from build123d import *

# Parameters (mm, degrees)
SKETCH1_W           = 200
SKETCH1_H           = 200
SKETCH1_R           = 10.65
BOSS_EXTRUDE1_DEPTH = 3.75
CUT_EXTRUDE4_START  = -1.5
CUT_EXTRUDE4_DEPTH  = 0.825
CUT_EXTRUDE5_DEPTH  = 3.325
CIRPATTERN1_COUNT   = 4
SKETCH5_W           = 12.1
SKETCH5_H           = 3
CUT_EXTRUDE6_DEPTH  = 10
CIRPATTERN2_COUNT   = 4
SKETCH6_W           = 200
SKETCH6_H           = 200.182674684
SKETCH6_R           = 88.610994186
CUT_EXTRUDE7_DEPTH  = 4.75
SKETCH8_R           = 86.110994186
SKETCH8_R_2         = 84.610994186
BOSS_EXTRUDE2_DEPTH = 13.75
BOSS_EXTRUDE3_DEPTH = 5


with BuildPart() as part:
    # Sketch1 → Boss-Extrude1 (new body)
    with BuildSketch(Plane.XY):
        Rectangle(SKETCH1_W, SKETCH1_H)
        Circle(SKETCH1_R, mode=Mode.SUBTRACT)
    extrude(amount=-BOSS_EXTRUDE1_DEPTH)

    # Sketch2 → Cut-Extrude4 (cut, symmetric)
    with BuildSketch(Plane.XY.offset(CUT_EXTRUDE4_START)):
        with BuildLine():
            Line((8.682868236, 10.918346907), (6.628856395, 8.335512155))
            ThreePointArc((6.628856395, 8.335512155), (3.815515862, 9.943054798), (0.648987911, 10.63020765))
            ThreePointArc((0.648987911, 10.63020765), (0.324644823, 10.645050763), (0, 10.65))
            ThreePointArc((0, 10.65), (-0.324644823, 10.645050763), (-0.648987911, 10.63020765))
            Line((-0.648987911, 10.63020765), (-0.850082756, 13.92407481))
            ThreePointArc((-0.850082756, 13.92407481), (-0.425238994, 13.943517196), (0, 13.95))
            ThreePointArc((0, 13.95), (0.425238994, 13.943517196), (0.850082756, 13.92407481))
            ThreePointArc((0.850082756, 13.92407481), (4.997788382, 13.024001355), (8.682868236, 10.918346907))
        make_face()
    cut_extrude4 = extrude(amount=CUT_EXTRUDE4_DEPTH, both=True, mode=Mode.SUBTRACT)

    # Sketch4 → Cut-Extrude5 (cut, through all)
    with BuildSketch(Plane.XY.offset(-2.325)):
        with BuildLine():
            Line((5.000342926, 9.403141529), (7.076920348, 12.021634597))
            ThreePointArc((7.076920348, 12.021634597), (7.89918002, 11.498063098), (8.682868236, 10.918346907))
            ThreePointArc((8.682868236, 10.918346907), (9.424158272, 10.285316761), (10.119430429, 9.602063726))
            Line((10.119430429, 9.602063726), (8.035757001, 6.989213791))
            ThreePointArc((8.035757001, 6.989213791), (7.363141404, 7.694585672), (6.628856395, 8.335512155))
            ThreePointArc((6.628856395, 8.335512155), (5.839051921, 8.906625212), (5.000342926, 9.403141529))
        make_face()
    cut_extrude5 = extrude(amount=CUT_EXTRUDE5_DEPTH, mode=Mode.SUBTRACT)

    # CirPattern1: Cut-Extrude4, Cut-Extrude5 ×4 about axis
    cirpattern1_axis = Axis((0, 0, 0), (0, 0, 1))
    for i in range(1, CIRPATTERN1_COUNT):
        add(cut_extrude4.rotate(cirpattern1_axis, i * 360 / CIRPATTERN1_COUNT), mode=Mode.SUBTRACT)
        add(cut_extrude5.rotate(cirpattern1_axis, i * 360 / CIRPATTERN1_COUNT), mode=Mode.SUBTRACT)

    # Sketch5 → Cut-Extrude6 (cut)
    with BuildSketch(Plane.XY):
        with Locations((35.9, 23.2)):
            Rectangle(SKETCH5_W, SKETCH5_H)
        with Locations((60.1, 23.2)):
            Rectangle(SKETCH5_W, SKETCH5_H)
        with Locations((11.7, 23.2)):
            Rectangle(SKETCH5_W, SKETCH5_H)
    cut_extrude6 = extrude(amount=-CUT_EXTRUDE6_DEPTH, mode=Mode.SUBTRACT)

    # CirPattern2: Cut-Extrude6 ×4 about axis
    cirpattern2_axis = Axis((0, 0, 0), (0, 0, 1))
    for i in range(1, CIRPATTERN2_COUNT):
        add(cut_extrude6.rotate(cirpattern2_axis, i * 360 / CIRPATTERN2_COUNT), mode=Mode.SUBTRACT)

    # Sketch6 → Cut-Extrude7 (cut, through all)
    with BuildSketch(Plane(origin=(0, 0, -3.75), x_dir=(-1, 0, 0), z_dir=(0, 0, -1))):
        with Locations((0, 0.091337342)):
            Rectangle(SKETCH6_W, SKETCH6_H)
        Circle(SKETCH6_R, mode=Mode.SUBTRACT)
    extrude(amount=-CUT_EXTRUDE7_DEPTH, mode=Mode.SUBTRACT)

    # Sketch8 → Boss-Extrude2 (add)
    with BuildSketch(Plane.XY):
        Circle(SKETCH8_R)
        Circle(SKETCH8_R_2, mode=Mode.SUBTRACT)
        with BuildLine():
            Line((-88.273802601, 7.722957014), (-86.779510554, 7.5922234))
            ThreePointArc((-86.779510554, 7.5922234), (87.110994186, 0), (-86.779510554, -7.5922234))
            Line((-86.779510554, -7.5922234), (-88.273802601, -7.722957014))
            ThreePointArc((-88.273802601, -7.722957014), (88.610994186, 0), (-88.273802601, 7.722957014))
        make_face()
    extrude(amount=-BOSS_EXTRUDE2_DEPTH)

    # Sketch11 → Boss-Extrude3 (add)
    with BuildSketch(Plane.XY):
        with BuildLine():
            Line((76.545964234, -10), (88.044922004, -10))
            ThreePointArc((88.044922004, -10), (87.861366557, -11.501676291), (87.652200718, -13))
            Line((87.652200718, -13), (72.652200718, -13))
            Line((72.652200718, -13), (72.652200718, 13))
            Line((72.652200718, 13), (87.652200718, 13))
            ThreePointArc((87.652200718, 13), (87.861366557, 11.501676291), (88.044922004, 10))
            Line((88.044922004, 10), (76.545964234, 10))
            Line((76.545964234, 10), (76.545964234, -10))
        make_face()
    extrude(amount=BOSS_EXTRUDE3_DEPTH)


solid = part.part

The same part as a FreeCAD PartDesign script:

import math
import FreeCAD as App
import Part
import Sketcher
Q = App.Units.Quantity

doc = App.newDocument("Part")
body = doc.addObject("PartDesign::Body", "Body")

# Sketch on XY plane
sketch1 = body.newObject("Sketcher::SketchObject", "Sketch")
sketch1.AttachmentSupport = (doc.getObject("XY_Plane"), [""])
sketch1.MapMode = "FlatFace"
sketch1.addGeometry(Part.LineSegment(App.Vector(-100, 100, 0), App.Vector(-100, -100, 0)), False)
sketch1.addGeometry(Part.LineSegment(App.Vector(-100, -100, 0), App.Vector(100, -100, 0)), False)
sketch1.addGeometry(Part.LineSegment(App.Vector(100, -100, 0), App.Vector(100, 100, 0)), False)
sketch1.addGeometry(Part.LineSegment(App.Vector(100, 100, 0), App.Vector(-100, 100, 0)), False)
sketch1.addGeometry(Part.Circle(App.Vector(0, 0, 0), App.Vector(0, 0, 1), 11), False)
sketch1.addConstraint(Sketcher.Constraint("Coincident", 0, 2, 1, 1))
sketch1.addConstraint(Sketcher.Constraint("Coincident", 1, 2, 2, 1))
sketch1.addConstraint(Sketcher.Constraint("Coincident", 2, 2, 3, 1))
sketch1.addConstraint(Sketcher.Constraint("Coincident", 3, 2, 0, 1))
sketch1.addConstraint(Sketcher.Constraint("Vertical", 0))
sketch1.addConstraint(Sketcher.Constraint("Horizontal", 1))
sketch1.addConstraint(Sketcher.Constraint("Vertical", 2))
sketch1.addConstraint(Sketcher.Constraint("Horizontal", 3))
sketch1.addConstraint(Sketcher.Constraint("Coincident", 4, 3, -1, 1))
sketch1.addConstraint(Sketcher.Constraint("Symmetric", 0, 2, 2, 2, -1, 1))
sketch1.addConstraint(Sketcher.Constraint("Equal", 3, 0))
sketch1.addConstraint(Sketcher.Constraint("Diameter", 4, Q("21.3 mm")))
sketch1.addConstraint(Sketcher.Constraint("DistanceX", 1, 1, 1, 2, Q("200 mm")))
pad1 = body.newObject("PartDesign::Pad", "Pad")
pad1.Profile = sketch1
pad1.Length = 3.75
pad1.Reversed = True

# Sketch on XY plane
sketch2 = body.newObject("Sketcher::SketchObject", "Sketch001")
sketch2.AttachmentSupport = (doc.getObject("XY_Plane"), [""])
sketch2.MapMode = "FlatFace"
sketch2.AttachmentOffset = App.Placement(App.Vector(0, 0, -1.5), App.Rotation())
sketch2.addGeometry(Part.LineSegment(App.Vector(6.6, 8.3, 0), App.Vector(8.7, 10.9, 0)), False)
sketch2.addGeometry(Part.ArcOfCircle(Part.Circle(App.Vector(0, 0, 0), App.Vector(0, 0, 1), 13.9), math.radians(52), math.radians(87)), False)
sketch2.addGeometry(Part.ArcOfCircle(Part.Circle(App.Vector(0, 0, 0), App.Vector(0, 0, 1), 14), math.radians(86.51), math.radians(90)), False)
sketch2.addGeometry(Part.ArcOfCircle(Part.Circle(App.Vector(0, 0, 0), App.Vector(0, 0, 1), 14), math.radians(90), math.radians(93.49)), False)
sketch2.addGeometry(Part.LineSegment(App.Vector(-0.9, 13.9, 0), App.Vector(-0.6, 10.6, 0)), False)
sketch2.addGeometry(Part.ArcOfCircle(Part.Circle(App.Vector(0, 0, 0), App.Vector(0, 0, 1), 10.6), math.radians(90), math.radians(93.49)), False)
sketch2.addGeometry(Part.ArcOfCircle(Part.Circle(App.Vector(0, 0, 0), App.Vector(0, 0, 1), 10.6), math.radians(86.51), math.radians(90)), False)
sketch2.addGeometry(Part.ArcOfCircle(Part.Circle(App.Vector(0, 0, 0), App.Vector(0, 0, 1), 10.6), math.radians(52), math.radians(87)), False)
sketch2.addConstraint(Sketcher.Constraint("Coincident", 0, 2, 1, 1))
sketch2.addConstraint(Sketcher.Constraint("Tangent", 1, 2, 2, 1))
sketch2.addConstraint(Sketcher.Constraint("Tangent", 2, 2, 3, 1))
sketch2.addConstraint(Sketcher.Constraint("Coincident", 3, 2, 4, 1))
sketch2.addConstraint(Sketcher.Constraint("Coincident", 4, 2, 5, 2))
sketch2.addConstraint(Sketcher.Constraint("Tangent", 5, 1, 6, 2))
sketch2.addConstraint(Sketcher.Constraint("Tangent", 6, 1, 7, 2))
sketch2.addConstraint(Sketcher.Constraint("Coincident", 7, 1, 0, 1))
sketch2.addConstraint(Sketcher.Constraint("Coincident", 1, 3, -1, 1))
sketch2.addConstraint(Sketcher.Constraint("Coincident", 3, 3, -1, 1))
sketch2.addConstraint(Sketcher.Constraint("Coincident", 5, 3, -1, 1))
sketch2.addConstraint(Sketcher.Constraint("Coincident", 7, 3, -1, 1))
sketch2.addConstraint(Sketcher.Constraint("PointOnObject", 2, 2, -2))
sketch2.addConstraint(Sketcher.Constraint("PointOnObject", 5, 1, -2))
sketch2.addConstraint(Sketcher.Constraint("Horizontal", 1, 2, 3, 2))
sketch2.addConstraint(Sketcher.Constraint("Horizontal", 4, 2, 6, 1))
sketch2.addConstraint(Sketcher.Constraint("Radius", 1, Q("13.95 mm")))
sketch2.addConstraint(Sketcher.Constraint("Radius", 5, Q("10.649999 mm")))
sketch2.addConstraint(Sketcher.Constraint("DistanceX", -1, 1, 0, 2, Q("8.682868 mm")))
sketch2.addConstraint(Sketcher.Constraint("DistanceX", 3, 2, 0, 2, Q("9.532951 mm")))
sketch2.addConstraint(Sketcher.Constraint("DistanceX", 4, 2, 1, 2, Q("1.499071 mm")))
sketch2.addConstraint(Sketcher.Constraint("DistanceX", 7, 1, 0, 2, Q("2.054012 mm")))
pocket1 = body.newObject("PartDesign::Pocket", "Pocket")
pocket1.Profile = sketch2
pocket1.Length = 1.65
pocket1.Midplane = True

# Sketch on XY plane
sketch3 = body.newObject("Sketcher::SketchObject", "Sketch002")
sketch3.AttachmentSupport = (doc.getObject("XY_Plane"), [""])
sketch3.MapMode = "FlatFace"
sketch3.AttachmentOffset = App.Placement(App.Vector(0, 0, -2.325), App.Rotation())
sketch3.addGeometry(Part.LineSegment(App.Vector(7.1, 12, 0), App.Vector(5, 9.4, 0)), False)
sketch3.addGeometry(Part.ArcOfCircle(Part.Circle(App.Vector(0, 0, 0), App.Vector(0, 0, 1), 10.6), math.radians(51.51), math.radians(62)), False)
sketch3.addGeometry(Part.ArcOfCircle(Part.Circle(App.Vector(0, 0, 0), App.Vector(0, 0, 1), 10.6), math.radians(41.02), math.radians(51.51)), False)
sketch3.addGeometry(Part.LineSegment(App.Vector(8, 7, 0), App.Vector(10.1, 9.6, 0)), False)
sketch3.addGeometry(Part.ArcOfCircle(Part.Circle(App.Vector(0, 0, 0), App.Vector(0, 0, 1), 13.9), math.radians(43.5), math.radians(51.51)), False)
sketch3.addGeometry(Part.ArcOfCircle(Part.Circle(App.Vector(0, 0, 0), App.Vector(0, 0, 1), 13.9), math.radians(51.51), math.radians(59.52)), False)
sketch3.addConstraint(Sketcher.Constraint("Coincident", 0, 2, 1, 2))
sketch3.addConstraint(Sketcher.Constraint("Tangent", 1, 1, 2, 2))
sketch3.addConstraint(Sketcher.Constraint("Coincident", 2, 1, 3, 1))
sketch3.addConstraint(Sketcher.Constraint("Coincident", 3, 2, 4, 1))
sketch3.addConstraint(Sketcher.Constraint("Tangent", 4, 2, 5, 1))
sketch3.addConstraint(Sketcher.Constraint("Coincident", 5, 2, 0, 1))
sketch3.addConstraint(Sketcher.Constraint("Coincident", 1, 3, -1, 1))
sketch3.addConstraint(Sketcher.Constraint("Coincident", 4, 3, -1, 1))
sketch3.addConstraint(Sketcher.Constraint("Equal", 1, 2))
sketch3.addConstraint(Sketcher.Constraint("Equal", 4, 5))
sketch3.addConstraint(Sketcher.Constraint("Equal", 0, 3))
sketch3.addConstraint(Sketcher.Constraint("Radius", 1, Q("10.65 mm")))
sketch3.addConstraint(Sketcher.Constraint("Radius", 4, Q("13.95 mm")))
sketch3.addConstraint(Sketcher.Constraint("DistanceX", 1, 1, 2, 1, Q("1.406901 mm")))
sketch3.addConstraint(Sketcher.Constraint("DistanceY", 2, 1, 1, 1, Q("1.346298 mm")))
sketch3.addConstraint(Sketcher.Constraint("DistanceY", -1, 1, 0, 2, Q("9.403142 mm")))
sketch3.addConstraint(Sketcher.Constraint("DistanceX", -1, 1, 3, 2, Q("10.11943 mm")))
sketch3.addConstraint(Sketcher.Constraint("DistanceX", -1, 1, 4, 2, Q("8.682868 mm")))
pocket2 = body.newObject("PartDesign::Pocket", "Pocket001")
pocket2.Profile = sketch3
pocket2.Type = "ThroughAll"
pocket2.Reversed = True
doc.recompute()

polarpattern = body.newObject("PartDesign::PolarPattern", "PolarPattern")
polarpattern.Originals = [pocket1, pocket2]
polarpattern.Axis = (doc.getObject("Z_Axis"), [""])
polarpattern.Angle = 360
polarpattern.Occurrences = 4
body.Tip = polarpattern

# Sketch on XY plane
sketch4 = body.newObject("Sketcher::SketchObject", "Sketch003")
sketch4.AttachmentSupport = (doc.getObject("XY_Plane"), [""])
sketch4.MapMode = "FlatFace"
sketch4.addGeometry(Part.LineSegment(App.Vector(29.9, 24.7, 0), App.Vector(29.9, 21.7, 0)), False)
sketch4.addGeometry(Part.LineSegment(App.Vector(29.9, 21.7, 0), App.Vector(42, 21.7, 0)), False)
sketch4.addGeometry(Part.LineSegment(App.Vector(42, 21.7, 0), App.Vector(42, 24.7, 0)), False)
sketch4.addGeometry(Part.LineSegment(App.Vector(42, 24.7, 0), App.Vector(29.9, 24.7, 0)), False)
sketch4.addGeometry(Part.LineSegment(App.Vector(54, 24.7, 0), App.Vector(54, 21.7, 0)), False)
sketch4.addGeometry(Part.LineSegment(App.Vector(54, 21.7, 0), App.Vector(66.2, 21.7, 0)), False)
sketch4.addGeometry(Part.LineSegment(App.Vector(66.2, 21.7, 0), App.Vector(66.2, 24.7, 0)), False)
sketch4.addGeometry(Part.LineSegment(App.Vector(66.2, 24.7, 0), App.Vector(54, 24.7, 0)), False)
sketch4.addGeometry(Part.LineSegment(App.Vector(5.7, 24.7, 0), App.Vector(5.7, 21.7, 0)), False)
sketch4.addGeometry(Part.LineSegment(App.Vector(5.7, 21.7, 0), App.Vector(17.8, 21.7, 0)), False)
sketch4.addGeometry(Part.LineSegment(App.Vector(17.8, 21.7, 0), App.Vector(17.8, 24.7, 0)), False)
sketch4.addGeometry(Part.LineSegment(App.Vector(17.8, 24.7, 0), App.Vector(5.7, 24.7, 0)), False)
sketch4.addConstraint(Sketcher.Constraint("Coincident", 0, 2, 1, 1))
sketch4.addConstraint(Sketcher.Constraint("Coincident", 1, 2, 2, 1))
sketch4.addConstraint(Sketcher.Constraint("Coincident", 2, 2, 3, 1))
sketch4.addConstraint(Sketcher.Constraint("Coincident", 3, 2, 0, 1))
sketch4.addConstraint(Sketcher.Constraint("Coincident", 4, 2, 5, 1))
sketch4.addConstraint(Sketcher.Constraint("Coincident", 5, 2, 6, 1))
sketch4.addConstraint(Sketcher.Constraint("Coincident", 6, 2, 7, 1))
sketch4.addConstraint(Sketcher.Constraint("Coincident", 7, 2, 4, 1))
sketch4.addConstraint(Sketcher.Constraint("Coincident", 8, 2, 9, 1))
sketch4.addConstraint(Sketcher.Constraint("Coincident", 9, 2, 10, 1))
sketch4.addConstraint(Sketcher.Constraint("Coincident", 10, 2, 11, 1))
sketch4.addConstraint(Sketcher.Constraint("Coincident", 11, 2, 8, 1))
sketch4.addConstraint(Sketcher.Constraint("Vertical", 0))
sketch4.addConstraint(Sketcher.Constraint("Horizontal", 1))
sketch4.addConstraint(Sketcher.Constraint("Vertical", 2))
sketch4.addConstraint(Sketcher.Constraint("Horizontal", 3))
sketch4.addConstraint(Sketcher.Constraint("Vertical", 4))
sketch4.addConstraint(Sketcher.Constraint("Horizontal", 5))
sketch4.addConstraint(Sketcher.Constraint("Vertical", 6))
sketch4.addConstraint(Sketcher.Constraint("Horizontal", 7))
sketch4.addConstraint(Sketcher.Constraint("Vertical", 8))
sketch4.addConstraint(Sketcher.Constraint("Horizontal", 9))
sketch4.addConstraint(Sketcher.Constraint("Vertical", 10))
sketch4.addConstraint(Sketcher.Constraint("Horizontal", 11))
sketch4.addConstraint(Sketcher.Constraint("Horizontal", 1, 2, 4, 2))
sketch4.addConstraint(Sketcher.Constraint("Horizontal", 3, 2, 6, 2))
sketch4.addConstraint(Sketcher.Constraint("Horizontal", 5, 2, 8, 2))
sketch4.addConstraint(Sketcher.Constraint("Horizontal", 7, 2, 10, 2))
sketch4.addConstraint(Sketcher.Constraint("Equal", 3, 5))
sketch4.addConstraint(Sketcher.Constraint("Equal", 7, 9))
sketch4.addConstraint(Sketcher.Constraint("DistanceY", 0, 2, 0, 1, Q("3 mm")))
sketch4.addConstraint(Sketcher.Constraint("DistanceX", 1, 1, 1, 2, Q("12.1 mm")))
sketch4.addConstraint(Sketcher.Constraint("DistanceY", -1, 1, 0, 2, Q("21.7 mm")))
sketch4.addConstraint(Sketcher.Constraint("DistanceX", 1, 2, 4, 2, Q("12.1 mm")))
sketch4.addConstraint(Sketcher.Constraint("DistanceX", 8, 2, 0, 2, Q("24.2 mm")))
sketch4.addConstraint(Sketcher.Constraint("DistanceX", -1, 1, 0, 2, Q("29.85 mm")))
pocket3 = body.newObject("PartDesign::Pocket", "Pocket002")
pocket3.Profile = sketch4
pocket3.Length = 10
doc.recompute()

polarpattern2 = body.newObject("PartDesign::PolarPattern", "PolarPattern001")
polarpattern2.Originals = [pocket3]
polarpattern2.Axis = (doc.getObject("Z_Axis"), [""])
polarpattern2.Angle = 360
polarpattern2.Occurrences = 4
body.Tip = polarpattern2

# Sketch on XY plane
sketch5 = body.newObject("Sketcher::SketchObject", "Sketch004")
sketch5.AttachmentSupport = (doc.getObject("XY_Plane"), [""])
sketch5.MapMode = "FlatFace"
sketch5.AttachmentOffset = App.Placement(App.Vector(0, 0, -3.75), App.Rotation())
sketch5.addGeometry(Part.LineSegment(App.Vector(100, 100, 0), App.Vector(100, -100, 0)), False)
sketch5.addGeometry(Part.LineSegment(App.Vector(100, -100, 0), App.Vector(-100, -100, 0)), False)
sketch5.addGeometry(Part.LineSegment(App.Vector(-100, -100, 0), App.Vector(-100, 100, 0)), False)
sketch5.addGeometry(Part.LineSegment(App.Vector(-100, 100, 0), App.Vector(100, 100, 0)), False)
sketch5.addGeometry(Part.Circle(App.Vector(0, 0, 0), App.Vector(0, 0, 1), 89), False)
sketch5.addConstraint(Sketcher.Constraint("Coincident", 0, 2, 1, 1))
sketch5.addConstraint(Sketcher.Constraint("Coincident", 1, 2, 2, 1))
sketch5.addConstraint(Sketcher.Constraint("Coincident", 2, 2, 3, 1))
sketch5.addConstraint(Sketcher.Constraint("Coincident", 3, 2, 0, 1))
sketch5.addConstraint(Sketcher.Constraint("Vertical", 0))
sketch5.addConstraint(Sketcher.Constraint("Horizontal", 1))
sketch5.addConstraint(Sketcher.Constraint("Vertical", 2))
sketch5.addConstraint(Sketcher.Constraint("Horizontal", 3))
sketch5.addConstraint(Sketcher.Constraint("Coincident", 4, 3, -1, 1))
sketch5.addConstraint(Sketcher.Constraint("DistanceX", 1, 2, 1, 1, Q("200 mm")))
sketch5.addConstraint(Sketcher.Constraint("DistanceX", -1, 1, 0, 2, Q("100 mm")))
sketch5.addConstraint(Sketcher.Constraint("DistanceY", 0, 2, -1, 1, Q("100 mm")))
sketch5.addConstraint(Sketcher.Constraint("Diameter", 4, Q("177.221988 mm")))
sketch5.addConstraint(Sketcher.Constraint("DistanceY", 0, 2, 0, 1, Q("200.182675 mm")))
pocket4 = body.newObject("PartDesign::Pocket", "Pocket003")
pocket4.Profile = sketch5
pocket4.Type = "ThroughAll"
pocket4.Reversed = True

# Sketch on XY plane
sketch6 = body.newObject("Sketcher::SketchObject", "Sketch005")
sketch6.AttachmentSupport = (doc.getObject("XY_Plane"), [""])
sketch6.MapMode = "FlatFace"
sketch6.addGeometry(Part.Circle(App.Vector(0, 0, 0), App.Vector(0, 0, 1), 86.1), False)
sketch6.addGeometry(Part.Circle(App.Vector(0, 0, 0), App.Vector(0, 0, 1), 84.6), False)
sketch6.addGeometry(Part.LineSegment(App.Vector(-88.3, 7.7, 0), App.Vector(-86.8, 7.6, 0)), False)
sketch6.addGeometry(Part.ArcOfCircle(Part.Circle(App.Vector(0, 0, 0), App.Vector(0, 0, 1), 87.1), math.radians(-175), math.radians(175)), False)
sketch6.addGeometry(Part.LineSegment(App.Vector(-86.8, -7.6, 0), App.Vector(-88.3, -7.7, 0)), False)
sketch6.addGeometry(Part.ArcOfCircle(Part.Circle(App.Vector(0, 0, 0), App.Vector(0, 0, 1), 88.6), math.radians(-175), math.radians(175)), False)
sketch6.addConstraint(Sketcher.Constraint("Coincident", 2, 2, 3, 2))
sketch6.addConstraint(Sketcher.Constraint("Coincident", 3, 1, 4, 1))
sketch6.addConstraint(Sketcher.Constraint("Coincident", 4, 2, 5, 1))
sketch6.addConstraint(Sketcher.Constraint("Coincident", 5, 2, 2, 1))
sketch6.addConstraint(Sketcher.Constraint("Coincident", 0, 3, -1, 1))
sketch6.addConstraint(Sketcher.Constraint("Coincident", 1, 3, -1, 1))
sketch6.addConstraint(Sketcher.Constraint("Coincident", 3, 3, -1, 1))
sketch6.addConstraint(Sketcher.Constraint("Coincident", 5, 3, -1, 1))
sketch6.addConstraint(Sketcher.Constraint("Vertical", 2, 2, 3, 1))
sketch6.addConstraint(Sketcher.Constraint("Vertical", 4, 2, 5, 2))
sketch6.addConstraint(Sketcher.Constraint("Angle", 2, Q("-5 deg")))
sketch6.addConstraint(Sketcher.Constraint("Distance", 2, Q("1.5 mm")))
sketch6.addConstraint(Sketcher.Constraint("Diameter", 0, Q("172.221988 mm")))
sketch6.addConstraint(Sketcher.Constraint("Diameter", 1, Q("169.221988 mm")))
sketch6.addConstraint(Sketcher.Constraint("Radius", 3, Q("87.110994 mm")))
sketch6.addConstraint(Sketcher.Constraint("DistanceX", 2, 2, -1, 1, Q("86.779511 mm")))
pad2 = body.newObject("PartDesign::Pad", "Pad001")
pad2.Profile = sketch6
pad2.Length = 13.75
pad2.Reversed = True

# Sketch on XY plane
sketch7 = body.newObject("Sketcher::SketchObject", "Sketch006")
sketch7.AttachmentSupport = (doc.getObject("XY_Plane"), [""])
sketch7.MapMode = "FlatFace"
sketch7.addGeometry(Part.LineSegment(App.Vector(88, -10, 0), App.Vector(76.5, -10, 0)), False)
sketch7.addGeometry(Part.LineSegment(App.Vector(76.5, -10, 0), App.Vector(76.5, 10, 0)), False)
sketch7.addGeometry(Part.LineSegment(App.Vector(76.5, 10, 0), App.Vector(88, 10, 0)), False)
sketch7.addGeometry(Part.ArcOfCircle(Part.Circle(App.Vector(0, 0, 0), App.Vector(0, 0, 1), 88.6), math.radians(6.48), math.radians(8.44)), False)
sketch7.addGeometry(Part.LineSegment(App.Vector(87.7, 13, 0), App.Vector(72.7, 13, 0)), False)
sketch7.addGeometry(Part.LineSegment(App.Vector(72.7, 13, 0), App.Vector(72.7, -13, 0)), False)
sketch7.addGeometry(Part.LineSegment(App.Vector(72.7, -13, 0), App.Vector(87.7, -13, 0)), False)
sketch7.addGeometry(Part.ArcOfCircle(Part.Circle(App.Vector(0, 0, 0), App.Vector(0, 0, 1), 88.6), math.radians(-8.44), math.radians(-6.48)), False)
sketch7.addConstraint(Sketcher.Constraint("Coincident", 0, 2, 1, 1))
sketch7.addConstraint(Sketcher.Constraint("Coincident", 1, 2, 2, 1))
sketch7.addConstraint(Sketcher.Constraint("Coincident", 2, 2, 3, 1))
sketch7.addConstraint(Sketcher.Constraint("Coincident", 3, 2, 4, 1))
sketch7.addConstraint(Sketcher.Constraint("Coincident", 4, 2, 5, 1))
sketch7.addConstraint(Sketcher.Constraint("Coincident", 5, 2, 6, 1))
sketch7.addConstraint(Sketcher.Constraint("Coincident", 6, 2, 7, 1))
sketch7.addConstraint(Sketcher.Constraint("Coincident", 7, 2, 0, 1))
sketch7.addConstraint(Sketcher.Constraint("Horizontal", 0))
sketch7.addConstraint(Sketcher.Constraint("Vertical", 1))
sketch7.addConstraint(Sketcher.Constraint("Horizontal", 2))
sketch7.addConstraint(Sketcher.Constraint("Horizontal", 4))
sketch7.addConstraint(Sketcher.Constraint("Vertical", 5))
sketch7.addConstraint(Sketcher.Constraint("Horizontal", 6))
sketch7.addConstraint(Sketcher.Constraint("Coincident", 3, 3, -1, 1))
sketch7.addConstraint(Sketcher.Constraint("Coincident", 7, 3, -1, 1))
sketch7.addConstraint(Sketcher.Constraint("Equal", 3, 7))
sketch7.addConstraint(Sketcher.Constraint("Vertical", 3, 2, 6, 2))
sketch7.addConstraint(Sketcher.Constraint("Vertical", 2, 2, 7, 2))
sketch7.addConstraint(Sketcher.Constraint("DistanceX", 4, 2, 4, 1, Q("15 mm")))
sketch7.addConstraint(Sketcher.Constraint("DistanceY", 1, 1, 1, 2, Q("20 mm")))
sketch7.addConstraint(Sketcher.Constraint("DistanceY", 5, 2, 5, 1, Q("26 mm")))
sketch7.addConstraint(Sketcher.Constraint("Radius", 3, Q("88.610992 mm")))
sketch7.addConstraint(Sketcher.Constraint("DistanceX", 0, 2, 0, 1, Q("11.498958 mm")))
pad3 = body.newObject("PartDesign::Pad", "Pad002")
pad3.Profile = sketch7
pad3.Length = 5

doc.recompute()
